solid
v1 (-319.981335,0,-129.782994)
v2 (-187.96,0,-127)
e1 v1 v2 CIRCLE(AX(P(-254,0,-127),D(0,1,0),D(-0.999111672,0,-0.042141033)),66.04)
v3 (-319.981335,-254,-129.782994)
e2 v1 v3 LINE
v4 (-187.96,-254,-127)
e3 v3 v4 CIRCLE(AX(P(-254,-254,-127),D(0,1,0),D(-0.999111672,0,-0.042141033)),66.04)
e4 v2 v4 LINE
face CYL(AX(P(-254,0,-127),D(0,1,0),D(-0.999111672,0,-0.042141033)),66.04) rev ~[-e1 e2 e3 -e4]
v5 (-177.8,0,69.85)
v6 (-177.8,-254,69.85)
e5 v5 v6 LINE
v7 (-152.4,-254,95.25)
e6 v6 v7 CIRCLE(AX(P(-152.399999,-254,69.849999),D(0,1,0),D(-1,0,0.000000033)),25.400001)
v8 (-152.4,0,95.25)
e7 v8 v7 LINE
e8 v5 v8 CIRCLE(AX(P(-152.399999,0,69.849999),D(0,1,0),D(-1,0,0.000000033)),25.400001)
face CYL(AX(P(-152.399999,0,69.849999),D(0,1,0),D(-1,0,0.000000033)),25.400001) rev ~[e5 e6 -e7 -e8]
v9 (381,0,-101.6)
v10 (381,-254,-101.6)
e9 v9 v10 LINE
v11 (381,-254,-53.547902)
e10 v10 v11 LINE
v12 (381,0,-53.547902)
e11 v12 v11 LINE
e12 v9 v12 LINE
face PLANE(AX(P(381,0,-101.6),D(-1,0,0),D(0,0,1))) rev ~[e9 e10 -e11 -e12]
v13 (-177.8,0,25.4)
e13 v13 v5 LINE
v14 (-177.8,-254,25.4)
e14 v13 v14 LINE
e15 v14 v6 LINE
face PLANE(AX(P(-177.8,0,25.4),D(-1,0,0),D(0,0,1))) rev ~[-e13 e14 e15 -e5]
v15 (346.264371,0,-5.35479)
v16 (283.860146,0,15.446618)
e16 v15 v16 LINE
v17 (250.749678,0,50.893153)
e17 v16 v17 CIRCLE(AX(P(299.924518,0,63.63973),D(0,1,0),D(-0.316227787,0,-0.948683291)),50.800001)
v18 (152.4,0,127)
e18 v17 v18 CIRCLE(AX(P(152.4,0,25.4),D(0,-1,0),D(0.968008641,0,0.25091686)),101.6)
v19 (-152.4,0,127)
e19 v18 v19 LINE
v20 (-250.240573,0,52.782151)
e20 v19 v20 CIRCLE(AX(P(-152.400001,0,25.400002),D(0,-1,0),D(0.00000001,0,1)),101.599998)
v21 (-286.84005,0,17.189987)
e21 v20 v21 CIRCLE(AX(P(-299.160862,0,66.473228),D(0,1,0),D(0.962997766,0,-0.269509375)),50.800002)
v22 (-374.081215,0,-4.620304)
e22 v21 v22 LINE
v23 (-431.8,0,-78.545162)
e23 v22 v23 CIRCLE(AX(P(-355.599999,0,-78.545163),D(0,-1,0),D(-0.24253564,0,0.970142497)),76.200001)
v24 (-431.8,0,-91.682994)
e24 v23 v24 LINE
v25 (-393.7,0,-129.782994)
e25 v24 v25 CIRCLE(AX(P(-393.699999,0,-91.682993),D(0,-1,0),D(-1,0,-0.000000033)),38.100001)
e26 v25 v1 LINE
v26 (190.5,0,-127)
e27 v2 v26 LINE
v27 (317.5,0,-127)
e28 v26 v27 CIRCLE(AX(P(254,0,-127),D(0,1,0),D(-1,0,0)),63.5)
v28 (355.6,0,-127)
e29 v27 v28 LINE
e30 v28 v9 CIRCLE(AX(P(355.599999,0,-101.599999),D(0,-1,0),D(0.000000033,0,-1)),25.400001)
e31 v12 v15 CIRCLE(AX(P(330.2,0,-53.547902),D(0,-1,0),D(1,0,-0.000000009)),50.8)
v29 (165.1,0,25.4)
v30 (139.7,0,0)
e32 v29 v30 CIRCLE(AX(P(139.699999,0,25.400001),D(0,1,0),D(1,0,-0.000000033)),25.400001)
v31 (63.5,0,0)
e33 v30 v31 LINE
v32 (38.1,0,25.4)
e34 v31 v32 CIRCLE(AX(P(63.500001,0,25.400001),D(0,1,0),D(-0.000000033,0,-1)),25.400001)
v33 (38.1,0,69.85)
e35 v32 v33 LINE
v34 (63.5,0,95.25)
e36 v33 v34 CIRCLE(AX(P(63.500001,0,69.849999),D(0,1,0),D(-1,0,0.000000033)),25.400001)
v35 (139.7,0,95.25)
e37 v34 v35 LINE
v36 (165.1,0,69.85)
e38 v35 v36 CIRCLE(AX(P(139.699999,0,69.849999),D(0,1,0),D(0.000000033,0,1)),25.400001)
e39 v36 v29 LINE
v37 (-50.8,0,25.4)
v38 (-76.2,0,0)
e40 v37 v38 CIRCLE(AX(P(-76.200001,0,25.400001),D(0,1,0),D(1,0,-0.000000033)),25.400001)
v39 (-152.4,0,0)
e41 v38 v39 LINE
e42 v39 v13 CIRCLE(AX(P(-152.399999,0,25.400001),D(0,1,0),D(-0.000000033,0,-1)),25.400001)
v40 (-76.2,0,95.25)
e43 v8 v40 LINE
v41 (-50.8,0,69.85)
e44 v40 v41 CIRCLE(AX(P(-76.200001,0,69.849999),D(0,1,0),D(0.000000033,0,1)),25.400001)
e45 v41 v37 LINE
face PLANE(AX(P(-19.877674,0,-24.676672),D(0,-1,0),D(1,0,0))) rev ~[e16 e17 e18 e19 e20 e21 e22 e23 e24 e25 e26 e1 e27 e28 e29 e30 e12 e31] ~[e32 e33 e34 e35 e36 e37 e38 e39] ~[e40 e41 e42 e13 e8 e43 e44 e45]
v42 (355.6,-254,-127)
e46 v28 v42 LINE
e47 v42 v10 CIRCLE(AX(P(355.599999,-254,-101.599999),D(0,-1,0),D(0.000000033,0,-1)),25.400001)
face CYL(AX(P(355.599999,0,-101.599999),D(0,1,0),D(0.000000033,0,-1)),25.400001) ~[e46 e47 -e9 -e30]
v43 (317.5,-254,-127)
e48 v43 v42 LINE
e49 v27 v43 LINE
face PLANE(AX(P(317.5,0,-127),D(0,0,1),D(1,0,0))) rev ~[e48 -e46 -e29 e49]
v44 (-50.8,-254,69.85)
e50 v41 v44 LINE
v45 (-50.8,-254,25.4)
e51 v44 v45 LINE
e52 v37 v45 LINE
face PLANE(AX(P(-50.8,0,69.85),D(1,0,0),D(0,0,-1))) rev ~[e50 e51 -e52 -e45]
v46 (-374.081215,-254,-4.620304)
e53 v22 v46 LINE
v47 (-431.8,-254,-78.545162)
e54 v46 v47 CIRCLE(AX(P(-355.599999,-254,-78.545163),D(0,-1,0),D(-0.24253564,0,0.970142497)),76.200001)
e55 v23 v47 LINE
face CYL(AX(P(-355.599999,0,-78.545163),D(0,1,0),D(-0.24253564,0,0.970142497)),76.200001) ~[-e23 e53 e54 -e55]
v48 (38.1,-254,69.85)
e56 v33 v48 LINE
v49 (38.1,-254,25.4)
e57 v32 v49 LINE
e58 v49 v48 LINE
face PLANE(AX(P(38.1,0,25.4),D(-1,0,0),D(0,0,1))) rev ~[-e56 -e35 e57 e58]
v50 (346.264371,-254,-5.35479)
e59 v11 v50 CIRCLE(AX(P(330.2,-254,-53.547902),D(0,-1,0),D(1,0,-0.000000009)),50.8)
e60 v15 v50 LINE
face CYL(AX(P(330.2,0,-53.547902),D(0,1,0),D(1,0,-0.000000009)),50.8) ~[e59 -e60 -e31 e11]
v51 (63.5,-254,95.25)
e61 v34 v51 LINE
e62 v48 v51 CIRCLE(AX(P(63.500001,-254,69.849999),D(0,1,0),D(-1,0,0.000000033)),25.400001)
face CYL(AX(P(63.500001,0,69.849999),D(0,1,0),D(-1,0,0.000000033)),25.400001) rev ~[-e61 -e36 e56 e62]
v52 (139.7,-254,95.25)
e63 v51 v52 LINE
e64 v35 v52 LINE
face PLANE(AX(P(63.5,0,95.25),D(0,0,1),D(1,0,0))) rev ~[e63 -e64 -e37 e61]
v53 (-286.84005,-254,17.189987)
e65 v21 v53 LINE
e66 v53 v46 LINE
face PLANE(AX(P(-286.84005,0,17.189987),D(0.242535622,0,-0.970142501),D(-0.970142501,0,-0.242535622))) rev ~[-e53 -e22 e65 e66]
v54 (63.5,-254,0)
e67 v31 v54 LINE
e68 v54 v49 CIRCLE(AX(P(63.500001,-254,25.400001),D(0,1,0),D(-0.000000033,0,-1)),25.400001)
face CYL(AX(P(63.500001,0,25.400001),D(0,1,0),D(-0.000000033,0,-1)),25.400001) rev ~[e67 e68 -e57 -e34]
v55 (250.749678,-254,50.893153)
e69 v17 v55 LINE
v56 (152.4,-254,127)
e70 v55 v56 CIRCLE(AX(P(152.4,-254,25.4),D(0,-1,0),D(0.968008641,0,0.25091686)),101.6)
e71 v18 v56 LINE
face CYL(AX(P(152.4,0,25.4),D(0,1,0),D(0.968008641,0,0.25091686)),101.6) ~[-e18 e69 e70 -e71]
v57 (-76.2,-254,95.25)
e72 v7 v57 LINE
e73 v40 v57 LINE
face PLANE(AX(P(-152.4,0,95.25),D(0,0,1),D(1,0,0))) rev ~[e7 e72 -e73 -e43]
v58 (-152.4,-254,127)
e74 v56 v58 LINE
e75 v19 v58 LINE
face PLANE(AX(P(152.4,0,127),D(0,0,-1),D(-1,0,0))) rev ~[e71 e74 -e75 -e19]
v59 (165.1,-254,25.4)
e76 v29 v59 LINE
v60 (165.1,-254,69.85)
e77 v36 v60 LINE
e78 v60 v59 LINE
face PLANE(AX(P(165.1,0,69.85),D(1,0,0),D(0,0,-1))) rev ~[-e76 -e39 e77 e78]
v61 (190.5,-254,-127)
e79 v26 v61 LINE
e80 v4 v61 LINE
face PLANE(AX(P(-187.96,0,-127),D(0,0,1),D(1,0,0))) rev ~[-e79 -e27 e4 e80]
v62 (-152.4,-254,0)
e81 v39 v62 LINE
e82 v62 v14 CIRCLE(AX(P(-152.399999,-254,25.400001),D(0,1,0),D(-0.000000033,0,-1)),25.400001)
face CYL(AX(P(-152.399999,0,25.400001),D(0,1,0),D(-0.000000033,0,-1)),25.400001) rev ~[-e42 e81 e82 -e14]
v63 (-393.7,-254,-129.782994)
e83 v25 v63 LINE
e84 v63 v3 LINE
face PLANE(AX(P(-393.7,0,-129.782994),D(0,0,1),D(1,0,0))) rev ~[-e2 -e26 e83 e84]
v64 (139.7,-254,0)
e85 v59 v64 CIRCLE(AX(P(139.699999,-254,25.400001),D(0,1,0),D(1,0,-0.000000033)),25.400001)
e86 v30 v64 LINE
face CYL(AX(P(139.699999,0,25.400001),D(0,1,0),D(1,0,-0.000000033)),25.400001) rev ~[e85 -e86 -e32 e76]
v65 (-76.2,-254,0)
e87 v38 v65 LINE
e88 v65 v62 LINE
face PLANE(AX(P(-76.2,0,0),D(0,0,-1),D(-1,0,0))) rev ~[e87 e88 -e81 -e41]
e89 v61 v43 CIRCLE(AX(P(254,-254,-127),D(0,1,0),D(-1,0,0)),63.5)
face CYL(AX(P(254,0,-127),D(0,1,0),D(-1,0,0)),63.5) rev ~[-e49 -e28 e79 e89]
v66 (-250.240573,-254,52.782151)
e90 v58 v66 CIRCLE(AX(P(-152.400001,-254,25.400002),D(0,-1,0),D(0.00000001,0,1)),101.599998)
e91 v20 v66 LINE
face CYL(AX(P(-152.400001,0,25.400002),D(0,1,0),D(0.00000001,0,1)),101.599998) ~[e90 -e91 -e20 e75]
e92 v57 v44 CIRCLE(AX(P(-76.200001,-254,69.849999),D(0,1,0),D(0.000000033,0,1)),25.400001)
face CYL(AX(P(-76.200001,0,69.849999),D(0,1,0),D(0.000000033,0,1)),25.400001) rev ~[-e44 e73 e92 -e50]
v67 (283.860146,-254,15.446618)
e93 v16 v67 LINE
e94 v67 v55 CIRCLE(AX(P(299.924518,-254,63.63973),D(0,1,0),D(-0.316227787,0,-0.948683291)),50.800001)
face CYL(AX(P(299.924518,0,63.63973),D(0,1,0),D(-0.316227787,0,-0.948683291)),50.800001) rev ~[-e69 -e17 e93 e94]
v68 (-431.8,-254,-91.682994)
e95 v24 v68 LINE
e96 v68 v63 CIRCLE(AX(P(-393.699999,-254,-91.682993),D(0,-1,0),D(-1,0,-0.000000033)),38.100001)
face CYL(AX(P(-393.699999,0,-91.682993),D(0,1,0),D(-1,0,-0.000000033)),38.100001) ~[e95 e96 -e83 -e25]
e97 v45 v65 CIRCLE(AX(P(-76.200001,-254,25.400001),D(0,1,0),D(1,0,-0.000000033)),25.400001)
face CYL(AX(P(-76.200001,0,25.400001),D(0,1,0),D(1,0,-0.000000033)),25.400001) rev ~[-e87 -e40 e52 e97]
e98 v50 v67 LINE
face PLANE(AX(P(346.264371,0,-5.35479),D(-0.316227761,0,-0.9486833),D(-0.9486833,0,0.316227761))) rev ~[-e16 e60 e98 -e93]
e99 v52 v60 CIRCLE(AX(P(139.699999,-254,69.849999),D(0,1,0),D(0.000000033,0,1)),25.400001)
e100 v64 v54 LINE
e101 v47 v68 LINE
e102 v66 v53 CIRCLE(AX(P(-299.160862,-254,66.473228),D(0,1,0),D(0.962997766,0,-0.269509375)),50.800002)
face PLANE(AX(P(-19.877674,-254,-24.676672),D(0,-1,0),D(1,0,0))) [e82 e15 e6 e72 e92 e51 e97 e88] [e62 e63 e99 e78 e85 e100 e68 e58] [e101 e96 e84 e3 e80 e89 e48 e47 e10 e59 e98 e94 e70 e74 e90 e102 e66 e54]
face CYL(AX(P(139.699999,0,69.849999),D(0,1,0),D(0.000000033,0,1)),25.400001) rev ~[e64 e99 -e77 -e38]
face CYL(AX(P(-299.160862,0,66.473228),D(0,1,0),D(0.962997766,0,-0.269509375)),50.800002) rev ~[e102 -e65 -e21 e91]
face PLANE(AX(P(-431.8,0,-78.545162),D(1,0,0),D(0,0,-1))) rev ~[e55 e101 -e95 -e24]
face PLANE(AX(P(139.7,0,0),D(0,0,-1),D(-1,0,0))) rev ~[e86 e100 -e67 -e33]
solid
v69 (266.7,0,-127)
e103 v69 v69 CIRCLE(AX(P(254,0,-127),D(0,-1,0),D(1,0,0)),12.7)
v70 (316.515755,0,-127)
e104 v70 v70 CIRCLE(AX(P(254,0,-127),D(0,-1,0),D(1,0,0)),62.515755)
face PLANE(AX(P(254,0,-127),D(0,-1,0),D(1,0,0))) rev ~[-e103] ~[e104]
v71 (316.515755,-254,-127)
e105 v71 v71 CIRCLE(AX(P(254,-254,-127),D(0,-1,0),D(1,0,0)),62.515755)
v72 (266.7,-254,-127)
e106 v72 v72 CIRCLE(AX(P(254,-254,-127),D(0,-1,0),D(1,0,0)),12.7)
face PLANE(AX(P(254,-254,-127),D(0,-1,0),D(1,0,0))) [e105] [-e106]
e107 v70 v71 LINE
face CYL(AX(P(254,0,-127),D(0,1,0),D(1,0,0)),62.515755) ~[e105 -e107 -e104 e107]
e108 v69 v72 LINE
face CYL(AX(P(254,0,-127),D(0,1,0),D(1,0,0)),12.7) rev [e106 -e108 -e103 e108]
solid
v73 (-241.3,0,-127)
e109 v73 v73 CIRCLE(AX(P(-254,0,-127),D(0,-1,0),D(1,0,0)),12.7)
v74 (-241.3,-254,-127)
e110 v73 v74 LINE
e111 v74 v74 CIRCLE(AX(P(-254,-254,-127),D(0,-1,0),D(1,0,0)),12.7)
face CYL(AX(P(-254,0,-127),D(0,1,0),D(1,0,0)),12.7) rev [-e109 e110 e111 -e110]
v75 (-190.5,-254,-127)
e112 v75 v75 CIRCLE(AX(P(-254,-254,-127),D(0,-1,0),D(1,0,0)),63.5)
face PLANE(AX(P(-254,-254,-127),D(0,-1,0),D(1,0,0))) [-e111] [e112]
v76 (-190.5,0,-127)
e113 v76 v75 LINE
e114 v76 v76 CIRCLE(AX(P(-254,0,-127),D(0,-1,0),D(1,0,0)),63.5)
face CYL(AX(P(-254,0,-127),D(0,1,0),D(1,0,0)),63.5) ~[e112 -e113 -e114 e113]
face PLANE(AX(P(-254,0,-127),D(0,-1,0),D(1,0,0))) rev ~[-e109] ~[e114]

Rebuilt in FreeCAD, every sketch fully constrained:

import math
import FreeCAD as App
import Part
import Sketcher

V = App.Vector
Q = App.Units.Quantity

doc = App.newDocument("Part")
body = doc.addObject("PartDesign::Body", "Body")
body.AllowCompound = True

# Sketch on XZ plane
sketch1 = body.newObject("Sketcher::SketchObject", "Sketch")
sketch1.AttachmentSupport = (doc.getObject("XZ_Plane"), [""])
sketch1.MapMode = "FlatFace"
sketch1.addGeometry(Part.LineSegment(V(152, 127, 0), V(-152, 127, 0)), False)
sketch1.addGeometry(Part.ArcOfCircle(Part.Circle(V(-152, 25, 0), V(0, 0, 1), 102), math.radians(90), math.radians(164)), False)
sketch1.addGeometry(Part.ArcOfCircle(Part.Circle(V(-299, 66, 0), V(0, 0, 1), 51), math.radians(-76), math.radians(-16)), False)
sketch1.addGeometry(Part.LineSegment(V(-287, 17, 0), V(-374, -5, 0)), False)
sketch1.addGeometry(Part.ArcOfCircle(Part.Circle(V(-356, -79, 0), V(0, 0, 1), 76), math.radians(104), math.radians(180)), False)
sketch1.addGeometry(Part.LineSegment(V(-432, -79, 0), V(-432, -92, 0)), False)
sketch1.addGeometry(Part.ArcOfCircle(Part.Circle(V(-394, -92, 0), V(0, 0, 1), 38), math.radians(-180), math.radians(-90)), False)
sketch1.addGeometry(Part.LineSegment(V(-394, -130, 0), V(-320, -130, 0)), False)
sketch1.addGeometry(Part.ArcOfCircle(Part.Circle(V(-254, -127, 0), V(0, 0, 1), 66), math.radians(0), math.radians(182)), False)
sketch1.addGeometry(Part.LineSegment(V(-188, -127, 0), V(190, -127, 0)), False)
sketch1.addGeometry(Part.ArcOfCircle(Part.Circle(V(254, -127, 0), V(0, 0, 1), 64), math.radians(0), math.radians(180)), False)
sketch1.addGeometry(Part.LineSegment(V(318, -127, 0), V(356, -127, 0)), False)
sketch1.addGeometry(Part.ArcOfCircle(Part.Circle(V(356, -102, 0), V(0, 0, 1), 25), math.radians(-90), math.radians(0)), False)
sketch1.addGeometry(Part.LineSegment(V(381, -102, 0), V(381, -54, 0)), False)
sketch1.addGeometry(Part.ArcOfCircle(Part.Circle(V(330, -54, 0), V(0, 0, 1), 51), math.radians(0), math.radians(72)), False)
sketch1.addGeometry(Part.LineSegment(V(346, -5, 0), V(284, 15, 0)), False)
sketch1.addGeometry(Part.ArcOfCircle(Part.Circle(V(300, 64, 0), V(0, 0, 1), 51), math.radians(-165), math.radians(-108)), False)
sketch1.addGeometry(Part.ArcOfCircle(Part.Circle(V(152, 25, 0), V(0, 0, 1), 102), math.radians(15), math.radians(90)), False)
sketch1.addGeometry(Part.LineSegment(V(-178, 25, 0), V(-178, 70, 0)), False)
sketch1.addGeometry(Part.ArcOfCircle(Part.Circle(V(-152, 70, 0), V(0, 0, 1), 25), math.radians(90), math.radians(180)), False)
sketch1.addGeometry(Part.LineSegment(V(-152, 95, 0), V(-76, 95, 0)), False)
sketch1.addGeometry(Part.ArcOfCircle(Part.Circle(V(-76, 70, 0), V(0, 0, 1), 25), math.radians(0), math.radians(90)), False)
sketch1.addGeometry(Part.LineSegment(V(-51, 70, 0), V(-51, 25, 0)), False)
sketch1.addGeometry(Part.ArcOfCircle(Part.Circle(V(-76, 25, 0), V(0, 0, 1), 25), math.radians(-90), math.radians(0)), False)
sketch1.addGeometry(Part.LineSegment(V(-76, 0, 0), V(-152, 0, 0)), False)
sketch1.addGeometry(Part.ArcOfCircle(Part.Circle(V(-152, 25, 0), V(0, 0, 1), 25), math.radians(-180), math.radians(-90)), False)
sketch1.addGeometry(Part.ArcOfCircle(Part.Circle(V(64, 25, 0), V(0, 0, 1), 25), math.radians(-180), math.radians(-90)), False)
sketch1.addGeometry(Part.LineSegment(V(38, 25, 0), V(38, 70, 0)), False)
sketch1.addGeometry(Part.ArcOfCircle(Part.Circle(V(64, 70, 0), V(0, 0, 1), 25), math.radians(90), math.radians(180)), False)
sketch1.addGeometry(Part.LineSegment(V(64, 95, 0), V(140, 95, 0)), False)
sketch1.addGeometry(Part.ArcOfCircle(Part.Circle(V(140, 70, 0), V(0, 0, 1), 25), math.radians(0), math.radians(90)), False)
sketch1.addGeometry(Part.LineSegment(V(165, 70, 0), V(165, 25, 0)), False)
sketch1.addGeometry(Part.ArcOfCircle(Part.Circle(V(140, 25, 0), V(0, 0, 1), 25), math.radians(-90), math.radians(0)), False)
sketch1.addGeometry(Part.LineSegment(V(140, 0, 0), V(64, 0, 0)), False)
sketch1.addGeometry(Part.Circle(V(-254, -127, 0), V(0, 0, 1), 64), False)
sketch1.addGeometry(Part.Circle(V(-254, -127, 0), V(0, 0, 1), 13), False)
sketch1.addGeometry(Part.Circle(V(254, -127, 0), V(0, 0, 1), 63), False)
sketch1.addGeometry(Part.Circle(V(254, -127, 0), V(0, 0, 1), 13), False)
sketch1.addConstraint(Sketcher.Constraint("Tangent", 0, 2, 1, 1))
sketch1.addConstraint(Sketcher.Constraint("Tangent", 1, 2, 2, 2))
sketch1.addConstraint(Sketcher.Constraint("Tangent", 2, 1, 3, 1))
sketch1.addConstraint(Sketcher.Constraint("Tangent", 3, 2, 4, 1))
sketch1.addConstraint(Sketcher.Constraint("Tangent", 4, 2, 5, 1))
sketch1.addConstraint(Sketcher.Constraint("Tangent", 5, 2, 6, 1))
sketch1.addConstraint(Sketcher.Constraint("Tangent", 6, 2, 7, 1))
sketch1.addConstraint(Sketcher.Constraint("Coincident", 7, 2, 8, 2))
sketch1.addConstraint(Sketcher.Constraint("Coincident", 8, 1, 9, 1))
sketch1.addConstraint(Sketcher.Constraint("Coincident", 9, 2, 10, 2))
sketch1.addConstraint(Sketcher.Constraint("Coincident", 10, 1, 11, 1))
sketch1.addConstraint(Sketcher.Constraint("Tangent", 11, 2, 12, 1))
sketch1.addConstraint(Sketcher.Constraint("Tangent", 12, 2, 13, 1))
sketch1.addConstraint(Sketcher.Constraint("Tangent", 13, 2, 14, 1))
sketch1.addConstraint(Sketcher.Constraint("Tangent", 14, 2, 15, 1))
sketch1.addConstraint(Sketcher.Constraint("Tangent", 15, 2, 16, 2))
sketch1.addConstraint(Sketcher.Constraint("Tangent", 16, 1, 17, 1))
sketch1.addConstraint(Sketcher.Constraint("Tangent", 17, 2, 0, 1))
sketch1.addConstraint(Sketcher.Constraint("Tangent", 18, 2, 19, 2))
sketch1.addConstraint(Sketcher.Constraint("Tangent", 19, 1, 20, 1))
sketch1.addConstraint(Sketcher.Constraint("Tangent", 20, 2, 21, 2))
sketch1.addConstraint(Sketcher.Constraint("Tangent", 21, 1, 22, 1))
sketch1.addConstraint(Sketcher.Constraint("Tangent", 22, 2, 23, 2))
sketch1.addConstraint(Sketcher.Constraint("Tangent", 23, 1, 24, 1))
sketch1.addConstraint(Sketcher.Constraint("Tangent", 24, 2, 25, 2))
sketch1.addConstraint(Sketcher.Constraint("Tangent", 25, 1, 18, 1))
sketch1.addConstraint(Sketcher.Constraint("Tangent", 26, 1, 27, 1))
sketch1.addConstraint(Sketcher.Constraint("Tangent", 27, 2, 28, 2))
sketch1.addConstraint(Sketcher.Constraint("Tangent", 28, 1, 29, 1))
sketch1.addConstraint(Sketcher.Constraint("Tangent", 29, 2, 30, 2))
sketch1.addConstraint(Sketcher.Constraint("Tangent", 30, 1, 31, 1))
sketch1.addConstraint(Sketcher.Constraint("Tangent", 31, 2, 32, 2))
sketch1.addConstraint(Sketcher.Constraint("Tangent", 32, 1, 33, 1))
sketch1.addConstraint(Sketcher.Constraint("Tangent", 33, 2, 26, 2))
sketch1.addConstraint(Sketcher.Constraint("Horizontal", 0))
sketch1.addConstraint(Sketcher.Constraint("Vertical", 5))
sketch1.addConstraint(Sketcher.Constraint("Horizontal", 7))
sketch1.addConstraint(Sketcher.Constraint("Horizontal", 9))
sketch1.addConstraint(Sketcher.Constraint("Horizontal", 11))
sketch1.addConstraint(Sketcher.Constraint("Vertical", 13))
sketch1.addConstraint(Sketcher.Constraint("Vertical", 18))
sketch1.addConstraint(Sketcher.Constraint("Horizontal", 20))
sketch1.addConstraint(Sketcher.Constraint("Vertical", 22))
sketch1.addConstraint(Sketcher.Constraint("Horizontal", 24))
sketch1.addConstraint(Sketcher.Constraint("Vertical", 27))
sketch1.addConstraint(Sketcher.Constraint("Horizontal", 29))
sketch1.addConstraint(Sketcher.Constraint("Vertical", 31))
sketch1.addConstraint(Sketcher.Constraint("Horizontal", 33))
sketch1.addConstraint(Sketcher.Constraint("Coincident", 25, 3, 1, 3))
sketch1.addConstraint(Sketcher.Constraint("Coincident", 34, 3, 8, 3))
sketch1.addConstraint(Sketcher.Constraint("Coincident", 35, 3, 8, 3))
sketch1.addConstraint(Sketcher.Constraint("Coincident", 36, 3, 10, 3))
sketch1.addConstraint(Sketcher.Constraint("Coincident", 37, 3, 10, 3))
sketch1.addConstraint(Sketcher.Constraint("Equal", 14, 16))
sketch1.addConstraint(Sketcher.Constraint("Equal", 1, 17))
sketch1.addConstraint(Sketcher.Constraint("Equal", 12, 19))
sketch1.addConstraint(Sketcher.Constraint("Equal", 19, 21))
sketch1.addConstraint(Sketcher.Constraint("Equal", 21, 23))
sketch1.addConstraint(Sketcher.Constraint("Equal", 23, 25))
sketch1.addConstraint(Sketcher.Constraint("Equal", 25, 26))
sketch1.addConstraint(Sketcher.Constraint("Equal", 26, 28))
sketch1.addConstraint(Sketcher.Constraint("Equal", 28, 30))
sketch1.addConstraint(Sketcher.Constraint("Equal", 30, 32))
sketch1.addConstraint(Sketcher.Constraint("Equal", 10, 34))
sketch1.addConstraint(Sketcher.Constraint("Equal", 35, 37))
sketch1.addConstraint(Sketcher.Constraint("Symmetric", 8, 3, 10, 3, -2))
sketch1.addConstraint(Sketcher.Constraint("PointOnObject", 23, 1, -1))
sketch1.addConstraint(Sketcher.Constraint("PointOnObject", 32, 1, -1))
sketch1.addConstraint(Sketcher.Constraint("Horizontal", 21, 3, 28, 3))
sketch1.addConstraint(Sketcher.Constraint("Horizontal", 37, 3, 8, 1))
sketch1.addConstraint(Sketcher.Constraint("Horizontal", 9, 2, 10, 1))
sketch1.addConstraint(Sketcher.Constraint("Equal", 24, 29))
sketch1.addConstraint(Sketcher.Constraint("Diameter", 34, Q("5 in")))
sketch1.addConstraint(Sketcher.Constraint("Diameter", 35, Q("1 in")))
sketch1.addConstraint(Sketcher.Constraint("Radius", 1, Q("3.9999999 in")))
sketch1.addConstraint(Sketcher.Constraint("Radius", 2, Q("2.0000001 in")))
sketch1.addConstraint(Sketcher.Constraint("Radius", 4, Q("3 in")))
sketch1.addConstraint(Sketcher.Constraint("Radius", 12, Q("1 in")))
sketch1.addConstraint(Sketcher.Constraint("Radius", 14, Q("2 in")))
sketch1.addConstraint(Sketcher.Constraint("Radius", 6, Q("1.5 in")))
sketch1.addConstraint(Sketcher.Constraint("Radius", 8, Q("2.6 in")))
sketch1.addConstraint(Sketcher.Constraint("DistanceX", 0, 2, 0, 1, Q("12 in")))
sketch1.addConstraint(Sketcher.Constraint("DistanceX", 20, 1, 20, 2, Q("3 in")))
sketch1.addConstraint(Sketcher.Constraint("DistanceX", 9, 1, 9, 2, Q("14.9 in")))
sketch1.addConstraint(Sketcher.Constraint("DistanceX", 11, 1, 11, 2, Q("1.5 in")))
sketch1.addConstraint(Sketcher.Constraint("DistanceX", 1, 3, -1, 1, Q("6 in")))
sketch1.addConstraint(Sketcher.Constraint("DistanceX", 4, 3, -1, 1, Q("14 in")))
sketch1.addConstraint(Sketcher.Constraint("DistanceY", 8, 3, -1, 1, Q("5 in")))
sketch1.addConstraint(Sketcher.Constraint("DistanceY", 18, 1, 18, 2, Q("1.75 in")))
sketch1.addConstraint(Sketcher.Constraint("DistanceX", -1, 1, 26, 3, Q("2.5 in")))
sketch1.addConstraint(Sketcher.Constraint("Diameter", 36, Q("125.03151 mm")))
sketch1.addConstraint(Sketcher.Constraint("DistanceY", 5, 2, 5, 1, Q("13.137832 mm")))
sketch1.addConstraint(Sketcher.Constraint("DistanceY", 14, 3, -1, 1, Q("53.547902 mm")))
sketch1.addConstraint(Sketcher.Constraint("Distance", 15, Q("65.779829 mm")))
sketch1.addConstraint(Sketcher.Constraint("DistanceX", 7, 1, 7, 2, Q("73.718665 mm")))
sketch1.addConstraint(Sketcher.Constraint("DistanceX", 2, 3, -1, 1, Q("299.160862 mm")))
pad1 = body.newObject("PartDesign::Pad", "Pad")
pad1.Profile = sketch1
pad1.Length = Q("10 in")

doc.recompute()
